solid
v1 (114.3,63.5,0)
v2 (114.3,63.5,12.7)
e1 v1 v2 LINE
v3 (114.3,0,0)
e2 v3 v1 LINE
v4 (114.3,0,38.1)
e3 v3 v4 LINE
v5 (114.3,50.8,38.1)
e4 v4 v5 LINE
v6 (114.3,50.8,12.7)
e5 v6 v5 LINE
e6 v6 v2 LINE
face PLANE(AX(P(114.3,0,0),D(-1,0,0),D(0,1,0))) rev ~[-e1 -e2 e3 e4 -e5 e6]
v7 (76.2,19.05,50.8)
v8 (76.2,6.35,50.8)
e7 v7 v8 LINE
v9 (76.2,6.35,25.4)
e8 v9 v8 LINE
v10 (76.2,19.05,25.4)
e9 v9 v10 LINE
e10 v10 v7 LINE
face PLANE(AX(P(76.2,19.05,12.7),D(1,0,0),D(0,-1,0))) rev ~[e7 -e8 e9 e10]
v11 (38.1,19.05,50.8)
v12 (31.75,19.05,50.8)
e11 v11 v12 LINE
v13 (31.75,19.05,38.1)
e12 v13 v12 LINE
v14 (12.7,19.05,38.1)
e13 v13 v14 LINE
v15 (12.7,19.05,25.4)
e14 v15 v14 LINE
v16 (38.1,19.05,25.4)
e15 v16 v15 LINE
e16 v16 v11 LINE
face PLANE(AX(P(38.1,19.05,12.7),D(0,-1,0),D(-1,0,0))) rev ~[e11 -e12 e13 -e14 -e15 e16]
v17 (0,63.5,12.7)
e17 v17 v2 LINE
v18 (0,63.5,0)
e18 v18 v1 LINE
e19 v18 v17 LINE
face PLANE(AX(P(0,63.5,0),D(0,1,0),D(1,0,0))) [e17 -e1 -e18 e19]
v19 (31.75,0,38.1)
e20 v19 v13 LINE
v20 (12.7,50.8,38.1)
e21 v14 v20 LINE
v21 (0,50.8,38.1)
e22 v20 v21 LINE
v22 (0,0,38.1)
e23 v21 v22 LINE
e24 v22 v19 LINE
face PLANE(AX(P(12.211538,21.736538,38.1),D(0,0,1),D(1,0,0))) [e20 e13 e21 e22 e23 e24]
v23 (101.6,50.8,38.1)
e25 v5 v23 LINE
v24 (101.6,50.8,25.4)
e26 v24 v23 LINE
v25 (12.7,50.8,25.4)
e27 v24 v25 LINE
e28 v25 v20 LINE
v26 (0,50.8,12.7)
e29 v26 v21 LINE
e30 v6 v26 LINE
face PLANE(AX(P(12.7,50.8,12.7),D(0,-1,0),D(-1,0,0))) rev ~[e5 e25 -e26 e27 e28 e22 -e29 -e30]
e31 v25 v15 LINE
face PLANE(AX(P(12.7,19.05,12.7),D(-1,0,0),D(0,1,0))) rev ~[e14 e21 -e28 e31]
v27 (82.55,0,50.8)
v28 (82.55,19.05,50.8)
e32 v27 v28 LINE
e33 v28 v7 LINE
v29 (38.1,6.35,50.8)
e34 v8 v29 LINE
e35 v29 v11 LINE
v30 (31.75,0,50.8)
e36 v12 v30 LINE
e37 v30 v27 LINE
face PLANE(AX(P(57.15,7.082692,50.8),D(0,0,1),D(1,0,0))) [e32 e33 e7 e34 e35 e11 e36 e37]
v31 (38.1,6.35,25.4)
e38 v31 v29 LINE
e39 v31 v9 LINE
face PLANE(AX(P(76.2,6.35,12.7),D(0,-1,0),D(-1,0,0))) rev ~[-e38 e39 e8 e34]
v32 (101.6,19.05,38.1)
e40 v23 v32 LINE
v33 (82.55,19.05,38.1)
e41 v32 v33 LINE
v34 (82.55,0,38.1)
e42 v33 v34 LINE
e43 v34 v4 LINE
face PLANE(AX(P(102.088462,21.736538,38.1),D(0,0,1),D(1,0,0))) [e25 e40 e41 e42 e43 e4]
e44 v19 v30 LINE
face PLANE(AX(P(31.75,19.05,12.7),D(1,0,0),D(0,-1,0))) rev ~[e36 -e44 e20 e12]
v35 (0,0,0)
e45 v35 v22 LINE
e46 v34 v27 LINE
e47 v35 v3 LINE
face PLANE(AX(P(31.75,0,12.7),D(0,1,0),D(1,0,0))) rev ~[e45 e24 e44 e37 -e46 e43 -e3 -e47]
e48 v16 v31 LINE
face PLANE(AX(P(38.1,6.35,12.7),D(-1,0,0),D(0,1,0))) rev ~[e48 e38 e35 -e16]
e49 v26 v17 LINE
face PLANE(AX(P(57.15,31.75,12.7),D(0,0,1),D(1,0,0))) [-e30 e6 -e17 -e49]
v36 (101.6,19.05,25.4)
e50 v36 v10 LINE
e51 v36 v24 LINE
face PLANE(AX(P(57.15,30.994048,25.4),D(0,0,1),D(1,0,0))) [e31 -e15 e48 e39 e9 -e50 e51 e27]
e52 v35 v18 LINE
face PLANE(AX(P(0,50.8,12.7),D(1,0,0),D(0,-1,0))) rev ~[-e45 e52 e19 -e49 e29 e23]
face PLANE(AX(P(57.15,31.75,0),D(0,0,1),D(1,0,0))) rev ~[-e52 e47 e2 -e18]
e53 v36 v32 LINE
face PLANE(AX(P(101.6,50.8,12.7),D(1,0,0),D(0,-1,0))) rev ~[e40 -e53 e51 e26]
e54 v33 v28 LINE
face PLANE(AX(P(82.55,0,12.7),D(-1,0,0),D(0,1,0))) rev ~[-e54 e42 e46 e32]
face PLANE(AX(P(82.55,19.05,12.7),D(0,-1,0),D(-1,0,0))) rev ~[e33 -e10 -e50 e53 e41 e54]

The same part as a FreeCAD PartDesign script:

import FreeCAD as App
import Part
import Sketcher
Q = App.Units.Quantity

doc = App.newDocument("Part")
params = doc.addObject("Spreadsheet::Sheet", "Params")
for row, (alias, value) in enumerate([
    ("sketch1_width", "4.5 in"),
    ("sketch1_height", "2.5 in"),
    ("pad1_length", "0.5 in"),
    ("sketch2_width", "1 in"),
    ("sketch2_width2", "1.5 in"),
    ("sketch2_height", "0.5 in"),
    ("sketch2_height2", "1.25 in"),
    ("pad2_length", "0.5 in"),
    ("sketch3_height", "2 in"),
    ("sketch3_width", "0.5 in"),
    ("pad3_length", "1 in"),
    ("sketch4_width", "2 in"),
    ("sketch4_width2", "1.5 in"),
    ("sketch4_height", "0.5 in"),
    ("sketch4_height2", "0.75 in"),
    ("pad4_length", "1.5 in"),
], start=1):
    params.set(f"A{row}", alias)
    params.set(f"B{row}", "=" + value)
    params.setAlias(f"B{row}", alias)

body = doc.addObject("PartDesign::Body", "Body")

# Sketch on XY plane
sketch1 = body.newObject("Sketcher::SketchObject", "Sketch")
sketch1.AttachmentSupport = (doc.getObject("XY_Plane"), [""])
sketch1.MapMode = "FlatFace"
sketch1.addGeometry([
    Part.LineSegment(App.Vector(0, 64, 0), App.Vector(0, 0, 0)),
    Part.LineSegment(App.Vector(0, 0, 0), App.Vector(114, 0, 0)),
    Part.LineSegment(App.Vector(114, 0, 0), App.Vector(114, 64, 0)),
    Part.LineSegment(App.Vector(114, 64, 0), App.Vector(0, 64, 0)),
], False)
sketch1.addConstraint([
    Sketcher.Constraint("Coincident", 0, 2, 1, 1),
    Sketcher.Constraint("Coincident", 1, 2, 2, 1),
    Sketcher.Constraint("Coincident", 2, 2, 3, 1),
    Sketcher.Constraint("Coincident", 3, 2, 0, 1),
    Sketcher.Constraint("Vertical", 0),
    Sketcher.Constraint("Horizontal", 1),
    Sketcher.Constraint("Vertical", 2),
    Sketcher.Constraint("Horizontal", 3),
    Sketcher.Constraint("Coincident", 0, 2, -1, 1),
    Sketcher.Constraint("DistanceX", 1, 1, 1, 2, Q("4.5 in")),
    Sketcher.Constraint("DistanceY", 0, 2, 0, 1, Q("2.5 in")),
])
sketch1.setExpression("Constraints[9]", "Params.sketch1_width")
sketch1.setExpression("Constraints[10]", "Params.sketch1_height")
pad1 = body.newObject("PartDesign::Pad", "Pad")
pad1.Profile = sketch1
pad1.setExpression("Length", "Params.pad1_length")

# Sketch on XY plane
sketch2 = body.newObject("Sketcher::SketchObject", "Sketch001")
sketch2.AttachmentSupport = (doc.getObject("XY_Plane"), [""])
sketch2.MapMode = "FlatFace"
sketch2.AttachmentOffset = App.Placement(App.Vector(0, 0, 0.5 * 25.4), App.Rotation())
sketch2.addGeometry([
    Part.LineSegment(App.Vector(13, 19, 0), App.Vector(38, 19, 0)),  # 0
    Part.LineSegment(App.Vector(38, 19, 0), App.Vector(38, 6, 0)),  # 1
    Part.LineSegment(App.Vector(38, 6, 0), App.Vector(76, 6, 0)),  # 2
    Part.LineSegment(App.Vector(76, 6, 0), App.Vector(76, 19, 0)),  # 3
    Part.LineSegment(App.Vector(76, 19, 0), App.Vector(102, 19, 0)),  # 4
    Part.LineSegment(App.Vector(102, 19, 0), App.Vector(102, 51, 0)),  # 5
    Part.LineSegment(App.Vector(102, 51, 0), App.Vector(13, 51, 0)),  # 6
    Part.LineSegment(App.Vector(13, 51, 0), App.Vector(13, 19, 0)),  # 7
], False)
sketch2.addConstraint([
    Sketcher.Constraint("Coincident", 0, 2, 1, 1),
    Sketcher.Constraint("Coincident", 1, 2, 2, 1),
    Sketcher.Constraint("Coincident", 2, 2, 3, 1),
    Sketcher.Constraint("Coincident", 3, 2, 4, 1),
    Sketcher.Constraint("Coincident", 4, 2, 5, 1),
    Sketcher.Constraint("Coincident", 5, 2, 6, 1),
    Sketcher.Constraint("Coincident", 6, 2, 7, 1),
    Sketcher.Constraint("Coincident", 7, 2, 0, 1),
    Sketcher.Constraint("Horizontal", 0),
    Sketcher.Constraint("Vertical", 1),
    Sketcher.Constraint("Horizontal", 2),
    Sketcher.Constraint("Vertical", 3),
    Sketcher.Constraint("Horizontal", 4),
    Sketcher.Constraint("Vertical", 5),
    Sketcher.Constraint("Horizontal", 6),
    Sketcher.Constraint("Vertical", 7),
    Sketcher.Constraint("Horizontal", 0, 2, 3, 2),
    Sketcher.Constraint("Equal", 0, 4),
    Sketcher.Constraint("DistanceX", 0, 1, 0, 2, Q("1 in")),
    Sketcher.Constraint("DistanceX", 2, 1, 2, 2, Q("1.5 in")),
    Sketcher.Constraint("DistanceY", 1, 2, 1, 1, Q("0.5 in")),
    Sketcher.Constraint("DistanceX", -1, 1, 2, 2, Q("3 in")),
    Sketcher.Constraint("DistanceY", -1, 1, 5, 2, Q("2 in")),
    Sketcher.Constraint("DistanceY", 5, 1, 5, 2, Q("1.25 in")),
])
sketch2.setExpression("Constraints[18]", "Params.sketch2_width")
sketch2.setExpression("Constraints[19]", "Params.sketch2_width2")
sketch2.setExpression("Constraints[20]", "Params.sketch2_height")
sketch2.setExpression("Constraints[23]", "Params.sketch2_height2")
pad2 = body.newObject("PartDesign::Pad", "Pad001")
pad2.Profile = sketch2
pad2.setExpression("Length", "Params.pad2_length")

# Sketch on XY plane
sketch3 = body.newObject("Sketcher::SketchObject", "Sketch002")
sketch3.AttachmentSupport = (doc.getObject("XY_Plane"), [""])
sketch3.MapMode = "FlatFace"
sketch3.AttachmentOffset = App.Placement(App.Vector(0, 0, 0.5 * 25.4), App.Rotation())
sketch3.addGeometry([
    Part.LineSegment(App.Vector(0, 51, 0), App.Vector(0, 0, 0)),  # 0
    Part.LineSegment(App.Vector(0, 0, 0), App.Vector(32, 0, 0)),  # 1
    Part.LineSegment(App.Vector(32, 0, 0), App.Vector(32, 19, 0)),  # 2
    Part.LineSegment(App.Vector(32, 19, 0), App.Vector(13, 19, 0)),  # 3
    Part.LineSegment(App.Vector(13, 19, 0), App.Vector(13, 51, 0)),  # 4
    Part.LineSegment(App.Vector(13, 51, 0), App.Vector(0, 51, 0)),  # 5
    Part.LineSegment(App.Vector(83, 19, 0), App.Vector(83, 0, 0)),  # 6
    Part.LineSegment(App.Vector(83, 0, 0), App.Vector(114, 0, 0)),  # 7
    Part.LineSegment(App.Vector(114, 0, 0), App.Vector(114, 51, 0)),  # 8
    Part.LineSegment(App.Vector(114, 51, 0), App.Vector(102, 51, 0)),  # 9
    Part.LineSegment(App.Vector(102, 51, 0), App.Vector(102, 19, 0)),  # 10
    Part.LineSegment(App.Vector(102, 19, 0), App.Vector(83, 19, 0)),  # 11
], False)
sketch3.addConstraint([
    Sketcher.Constraint("Coincident", 0, 2, 1, 1),
    Sketcher.Constraint("Coincident", 1, 2, 2, 1),
    Sketcher.Constraint("Coincident", 2, 2, 3, 1),
    Sketcher.Constraint("Coincident", 3, 2, 4, 1),
    Sketcher.Constraint("Coincident", 4, 2, 5, 1),
    Sketcher.Constraint("Coincident", 5, 2, 0, 1),
    Sketcher.Constraint("Coincident", 6, 2, 7, 1),
    Sketcher.Constraint("Coincident", 7, 2, 8, 1),
    Sketcher.Constraint("Coincident", 8, 2, 9, 1),
    Sketcher.Constraint("Coincident", 9, 2, 10, 1),
    Sketcher.Constraint("Coincident", 10, 2, 11, 1),
    Sketcher.Constraint("Coincident", 11, 2, 6, 1),
    Sketcher.Constraint("Vertical", 0),
    Sketcher.Constraint("Horizontal", 1),
    Sketcher.Constraint("Vertical", 2),
    Sketcher.Constraint("Horizontal", 3),
    Sketcher.Constraint("Vertical", 4),
    Sketcher.Constraint("Horizontal", 5),
    Sketcher.Constraint("Vertical", 6),
    Sketcher.Constraint("Horizontal", 7),
    Sketcher.Constraint("Vertical", 8),
    Sketcher.Constraint("Horizontal", 9),
    Sketcher.Constraint("Vertical", 10),
    Sketcher.Constraint("Horizontal", 11),
    Sketcher.Constraint("Coincident", 0, 2, -1, 1),
    Sketcher.Constraint("PointOnObject", 6, 2, -1),
    Sketcher.Constraint("Horizontal", 5, 2, 8, 2),
    Sketcher.Constraint("Horizontal", 3, 2, 10, 2),
    Sketcher.Constraint("Equal", 1, 7),
    Sketcher.Constraint("Equal", 5, 9),
    Sketcher.Constraint("Equal", 11, 2),
    Sketcher.Constraint("Equal", 7, 4),
    Sketcher.Constraint("DistanceY", 0, 2, 0, 1, Q("2 in")),
    Sketcher.Constraint("DistanceX", 5, 2, 5, 1, Q("0.5 in")),
    Sketcher.Constraint("DistanceX", -1, 1, 9, 2, Q("4 in")),
])
sketch3.setExpression("Constraints[32]", "Params.sketch3_height")
sketch3.setExpression("Constraints[33]", "Params.sketch3_width")
pad3 = body.newObject("PartDesign::Pad", "Pad002")
pad3.Profile = sketch3
pad3.setExpression("Length", "Params.pad3_length")

# Sketch on XY plane
sketch4 = body.newObject("Sketcher::SketchObject", "Sketch003")
sketch4.AttachmentSupport = (doc.getObject("XY_Plane"), [""])
sketch4.MapMode = "FlatFace"
sketch4.AttachmentOffset = App.Placement(App.Vector(0, 0, 0.5 * 25.4), App.Rotation())
sketch4.addGeometry([
    Part.LineSegment(App.Vector(32, 19, 0), App.Vector(32, 0, 0)),  # 0
    Part.LineSegment(App.Vector(32, 0, 0), App.Vector(83, 0, 0)),  # 1
    Part.LineSegment(App.Vector(83, 0, 0), App.Vector(83, 19, 0)),  # 2
    Part.LineSegment(App.Vector(83, 19, 0), App.Vector(76, 19, 0)),  # 3
    Part.LineSegment(App.Vector(76, 19, 0), App.Vector(76, 6, 0)),  # 4
    Part.LineSegment(App.Vector(76, 6, 0), App.Vector(38, 6, 0)),  # 5
    Part.LineSegment(App.Vector(38, 6, 0), App.Vector(38, 19, 0)),  # 6
    Part.LineSegment(App.Vector(38, 19, 0), App.Vector(32, 19, 0)),  # 7
], False)
sketch4.addConstraint([
    Sketcher.Constraint("Coincident", 0, 2, 1, 1),
    Sketcher.Constraint("Coincident", 1, 2, 2, 1),
    Sketcher.Constraint("Coincident", 2, 2, 3, 1),
    Sketcher.Constraint("Coincident", 3, 2, 4, 1),
    Sketcher.Constraint("Coincident", 4, 2, 5, 1),
    Sketcher.Constraint("Coincident", 5, 2, 6, 1),
    Sketcher.Constraint("Coincident", 6, 2, 7, 1),
    Sketcher.Constraint("Coincident", 7, 2, 0, 1),
    Sketcher.Constraint("Vertical", 0),
    Sketcher.Constraint("Horizontal", 1),
    Sketcher.Constraint("Vertical", 2),
    Sketcher.Constraint("Horizontal", 3),
    Sketcher.Constraint("Vertical", 4),
    Sketcher.Constraint("Horizontal", 5),
    Sketcher.Constraint("Vertical", 6),
    Sketcher.Constraint("Horizontal", 7),
    Sketcher.Constraint("PointOnObject", 0, 2, -1),
    Sketcher.Constraint("Horizontal", 3, 2, 6, 2),
    Sketcher.Constraint("Equal", 3, 7),
    Sketcher.Constraint("DistanceX", 1, 1, 1, 2, Q("2 in")),
    Sketcher.Constraint("DistanceX", 5, 2, 5, 1, Q("1.5 in")),
    Sketcher.Constraint("DistanceY", 4, 2, 4, 1, Q("0.5 in")),
    Sketcher.Constraint("DistanceX", -1, 1, 3, 2, Q("3 in")),
    Sketcher.Constraint("DistanceY", 0, 2, 0, 1, Q("0.75 in")),
])
sketch4.setExpression("Constraints[19]", "Params.sketch4_width")
sketch4.setExpression("Constraints[20]", "Params.sketch4_width2")
sketch4.setExpression("Constraints[21]", "Params.sketch4_height")
sketch4.setExpression("Constraints[23]", "Params.sketch4_height2")
pad4 = body.newObject("PartDesign::Pad", "Pad003")
pad4.Profile = sketch4
pad4.setExpression("Length", "Params.pad4_length")

doc.recompute()
